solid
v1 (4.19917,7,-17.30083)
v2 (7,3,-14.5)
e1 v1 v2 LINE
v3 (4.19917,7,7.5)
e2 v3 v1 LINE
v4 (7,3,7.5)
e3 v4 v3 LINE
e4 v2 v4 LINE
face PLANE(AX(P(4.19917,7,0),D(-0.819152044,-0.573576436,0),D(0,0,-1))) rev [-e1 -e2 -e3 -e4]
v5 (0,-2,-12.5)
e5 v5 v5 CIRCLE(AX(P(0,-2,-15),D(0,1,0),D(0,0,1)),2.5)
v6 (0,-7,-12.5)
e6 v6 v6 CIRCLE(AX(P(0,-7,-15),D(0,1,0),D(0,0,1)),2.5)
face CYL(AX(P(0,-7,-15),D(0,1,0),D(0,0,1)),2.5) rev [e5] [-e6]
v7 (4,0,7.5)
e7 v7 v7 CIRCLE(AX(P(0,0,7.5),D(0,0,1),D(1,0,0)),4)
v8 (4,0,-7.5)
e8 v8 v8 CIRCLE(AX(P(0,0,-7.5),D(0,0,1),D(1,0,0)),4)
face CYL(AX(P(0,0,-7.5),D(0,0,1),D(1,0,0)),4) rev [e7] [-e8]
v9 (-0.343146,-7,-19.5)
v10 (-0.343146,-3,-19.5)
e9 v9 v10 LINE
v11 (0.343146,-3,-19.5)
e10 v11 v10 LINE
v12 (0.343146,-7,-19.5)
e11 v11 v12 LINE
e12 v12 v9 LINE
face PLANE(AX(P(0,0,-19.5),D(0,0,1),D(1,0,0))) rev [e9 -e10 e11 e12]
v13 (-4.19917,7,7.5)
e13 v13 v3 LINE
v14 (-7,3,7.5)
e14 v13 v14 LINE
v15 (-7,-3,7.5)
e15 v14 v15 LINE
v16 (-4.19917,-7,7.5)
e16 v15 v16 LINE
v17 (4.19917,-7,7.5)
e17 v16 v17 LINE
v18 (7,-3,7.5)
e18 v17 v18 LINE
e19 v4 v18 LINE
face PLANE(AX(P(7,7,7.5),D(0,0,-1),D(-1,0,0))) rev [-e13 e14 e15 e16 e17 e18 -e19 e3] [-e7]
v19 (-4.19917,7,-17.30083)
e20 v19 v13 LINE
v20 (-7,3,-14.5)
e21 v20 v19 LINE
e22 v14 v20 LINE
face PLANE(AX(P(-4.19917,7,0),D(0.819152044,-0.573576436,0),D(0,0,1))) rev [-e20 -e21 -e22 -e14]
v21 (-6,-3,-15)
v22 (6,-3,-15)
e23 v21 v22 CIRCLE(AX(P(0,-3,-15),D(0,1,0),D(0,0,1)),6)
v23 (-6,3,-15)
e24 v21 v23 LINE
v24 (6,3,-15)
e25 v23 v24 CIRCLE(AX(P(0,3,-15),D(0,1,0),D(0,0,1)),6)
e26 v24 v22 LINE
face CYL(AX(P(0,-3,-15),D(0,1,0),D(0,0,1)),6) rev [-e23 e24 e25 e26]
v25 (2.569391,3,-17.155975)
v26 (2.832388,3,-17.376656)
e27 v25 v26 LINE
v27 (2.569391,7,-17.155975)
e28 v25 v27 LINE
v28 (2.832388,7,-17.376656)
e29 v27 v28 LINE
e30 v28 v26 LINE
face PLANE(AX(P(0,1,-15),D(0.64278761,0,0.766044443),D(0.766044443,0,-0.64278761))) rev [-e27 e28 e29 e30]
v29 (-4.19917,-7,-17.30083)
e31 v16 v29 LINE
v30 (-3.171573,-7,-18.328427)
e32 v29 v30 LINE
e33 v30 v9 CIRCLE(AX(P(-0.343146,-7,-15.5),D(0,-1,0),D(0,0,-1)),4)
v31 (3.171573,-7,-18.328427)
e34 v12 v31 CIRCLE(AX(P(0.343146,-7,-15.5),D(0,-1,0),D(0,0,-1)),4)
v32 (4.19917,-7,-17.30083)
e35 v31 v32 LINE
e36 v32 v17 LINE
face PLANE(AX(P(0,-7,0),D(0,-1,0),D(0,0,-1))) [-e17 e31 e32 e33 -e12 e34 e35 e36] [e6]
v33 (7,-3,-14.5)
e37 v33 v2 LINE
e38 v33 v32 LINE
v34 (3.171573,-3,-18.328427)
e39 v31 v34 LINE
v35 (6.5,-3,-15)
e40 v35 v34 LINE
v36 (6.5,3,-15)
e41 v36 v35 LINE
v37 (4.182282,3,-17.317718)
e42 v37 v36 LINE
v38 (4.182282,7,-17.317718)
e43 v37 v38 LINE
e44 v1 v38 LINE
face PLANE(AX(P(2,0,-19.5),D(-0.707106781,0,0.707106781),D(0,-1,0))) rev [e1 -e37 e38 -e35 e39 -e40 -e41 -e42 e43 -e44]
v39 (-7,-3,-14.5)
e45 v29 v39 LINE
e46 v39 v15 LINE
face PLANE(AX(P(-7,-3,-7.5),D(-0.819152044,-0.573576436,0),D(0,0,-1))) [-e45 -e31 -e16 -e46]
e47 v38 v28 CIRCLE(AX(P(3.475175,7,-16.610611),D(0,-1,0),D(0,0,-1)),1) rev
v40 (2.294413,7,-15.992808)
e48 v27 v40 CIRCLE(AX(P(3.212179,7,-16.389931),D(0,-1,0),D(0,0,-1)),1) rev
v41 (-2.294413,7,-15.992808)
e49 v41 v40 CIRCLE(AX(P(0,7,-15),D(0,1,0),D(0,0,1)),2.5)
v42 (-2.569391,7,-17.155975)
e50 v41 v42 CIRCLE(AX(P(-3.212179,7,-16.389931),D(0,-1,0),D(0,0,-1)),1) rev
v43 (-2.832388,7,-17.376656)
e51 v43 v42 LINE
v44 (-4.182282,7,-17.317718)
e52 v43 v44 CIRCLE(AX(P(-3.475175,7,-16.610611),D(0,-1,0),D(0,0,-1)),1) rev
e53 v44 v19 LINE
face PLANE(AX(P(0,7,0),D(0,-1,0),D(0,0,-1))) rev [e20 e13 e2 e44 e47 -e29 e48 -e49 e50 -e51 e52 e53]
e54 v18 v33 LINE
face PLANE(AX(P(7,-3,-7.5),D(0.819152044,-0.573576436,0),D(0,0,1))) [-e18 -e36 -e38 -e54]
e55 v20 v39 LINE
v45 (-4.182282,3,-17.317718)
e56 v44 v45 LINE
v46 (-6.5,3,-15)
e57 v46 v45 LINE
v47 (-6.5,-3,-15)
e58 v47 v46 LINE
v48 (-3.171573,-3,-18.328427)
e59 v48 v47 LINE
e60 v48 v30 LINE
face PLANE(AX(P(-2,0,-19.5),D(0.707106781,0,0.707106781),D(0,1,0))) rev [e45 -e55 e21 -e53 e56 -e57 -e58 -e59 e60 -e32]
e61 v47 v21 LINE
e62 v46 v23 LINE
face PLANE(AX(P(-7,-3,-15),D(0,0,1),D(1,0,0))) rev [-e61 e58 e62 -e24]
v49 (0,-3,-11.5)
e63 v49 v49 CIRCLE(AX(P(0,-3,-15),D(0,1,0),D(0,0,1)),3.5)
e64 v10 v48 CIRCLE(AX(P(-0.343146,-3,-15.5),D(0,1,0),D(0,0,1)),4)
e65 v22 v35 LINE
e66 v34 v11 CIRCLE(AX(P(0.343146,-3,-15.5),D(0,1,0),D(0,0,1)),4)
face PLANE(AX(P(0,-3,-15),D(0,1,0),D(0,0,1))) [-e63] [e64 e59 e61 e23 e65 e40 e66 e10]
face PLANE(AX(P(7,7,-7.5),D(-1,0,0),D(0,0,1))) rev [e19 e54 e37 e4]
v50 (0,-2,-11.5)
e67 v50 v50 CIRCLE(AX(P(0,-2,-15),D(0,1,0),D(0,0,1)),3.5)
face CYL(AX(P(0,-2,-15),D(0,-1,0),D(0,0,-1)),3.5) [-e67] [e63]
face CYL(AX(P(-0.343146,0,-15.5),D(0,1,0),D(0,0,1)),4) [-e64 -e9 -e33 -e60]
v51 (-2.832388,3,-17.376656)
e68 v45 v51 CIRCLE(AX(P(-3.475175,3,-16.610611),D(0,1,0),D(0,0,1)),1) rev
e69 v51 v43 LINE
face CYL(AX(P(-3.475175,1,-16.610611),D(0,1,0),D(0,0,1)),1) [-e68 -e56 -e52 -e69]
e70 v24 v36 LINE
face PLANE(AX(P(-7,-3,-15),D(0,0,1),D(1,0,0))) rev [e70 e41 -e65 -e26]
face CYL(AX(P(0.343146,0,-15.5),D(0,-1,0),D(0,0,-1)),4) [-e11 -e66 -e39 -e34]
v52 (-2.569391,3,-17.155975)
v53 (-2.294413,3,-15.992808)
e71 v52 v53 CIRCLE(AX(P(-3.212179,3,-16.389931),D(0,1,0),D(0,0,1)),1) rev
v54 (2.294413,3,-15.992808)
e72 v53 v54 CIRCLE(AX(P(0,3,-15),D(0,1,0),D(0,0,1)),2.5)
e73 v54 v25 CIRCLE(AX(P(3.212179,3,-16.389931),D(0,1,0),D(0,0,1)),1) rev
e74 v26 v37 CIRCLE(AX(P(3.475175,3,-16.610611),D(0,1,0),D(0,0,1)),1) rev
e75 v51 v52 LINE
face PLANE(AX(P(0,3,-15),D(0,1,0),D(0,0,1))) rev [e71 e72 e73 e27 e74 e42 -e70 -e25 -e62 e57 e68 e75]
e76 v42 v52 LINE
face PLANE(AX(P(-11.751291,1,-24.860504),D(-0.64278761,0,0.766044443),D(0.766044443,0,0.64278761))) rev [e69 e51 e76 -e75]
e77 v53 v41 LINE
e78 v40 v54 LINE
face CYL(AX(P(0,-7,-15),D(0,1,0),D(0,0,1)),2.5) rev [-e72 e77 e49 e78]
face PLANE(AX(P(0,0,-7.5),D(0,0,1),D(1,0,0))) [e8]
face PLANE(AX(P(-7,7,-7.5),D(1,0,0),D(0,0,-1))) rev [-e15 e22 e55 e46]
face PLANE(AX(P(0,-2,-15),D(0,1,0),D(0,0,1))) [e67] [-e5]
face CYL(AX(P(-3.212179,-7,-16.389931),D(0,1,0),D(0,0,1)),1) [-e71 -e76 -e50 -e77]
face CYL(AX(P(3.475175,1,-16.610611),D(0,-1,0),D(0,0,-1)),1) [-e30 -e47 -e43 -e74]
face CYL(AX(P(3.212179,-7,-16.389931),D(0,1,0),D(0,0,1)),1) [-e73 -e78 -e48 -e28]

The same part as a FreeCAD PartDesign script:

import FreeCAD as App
import Part
import Sketcher

V = App.Vector
Q = App.Units.Quantity


def edges_at(feature, points):
    """Names of the edges that pass closest to the given points."""
    edges = feature.Shape.Edges
    near = lambda p: min(range(len(edges)), key=lambda i: edges[i].distToShape(Part.Vertex(*p))[0])
    return sorted({f"Edge{near(p) + 1}" for p in points})

doc = App.newDocument("Part")
body = doc.addObject("PartDesign::Body", "Body")

# Sketch on XZ plane
sketch1 = body.newObject("Sketcher::SketchObject", "Sketch")
sketch1.AttachmentSupport = (doc.getObject("XZ_Plane"), [""])
sketch1.MapMode = "FlatFace"
sketch1.addGeometry(Part.LineSegment(V(-7, -7.5, 0), V(-7, 7.5, 0)), False)
sketch1.addGeometry(Part.LineSegment(V(-7, 7.5, 0), V(7, 7.5, 0)), False)
sketch1.addGeometry(Part.LineSegment(V(7, 7.5, 0), V(7, -7.5, 0)), False)
sketch1.addGeometry(Part.LineSegment(V(7, -7.5, 0), V(-7, -7.5, 0)), False)
sketch1.addConstraint(Sketcher.Constraint("Coincident", 0, 2, 1, 1))
sketch1.addConstraint(Sketcher.Constraint("Coincident", 1, 2, 2, 1))
sketch1.addConstraint(Sketcher.Constraint("Coincident", 2, 2, 3, 1))
sketch1.addConstraint(Sketcher.Constraint("Coincident", 3, 2, 0, 1))
sketch1.addConstraint(Sketcher.Constraint("Vertical", 0))
sketch1.addConstraint(Sketcher.Constraint("Horizontal", 1))
sketch1.addConstraint(Sketcher.Constraint("Vertical", 2))
sketch1.addConstraint(Sketcher.Constraint("Horizontal", 3))
sketch1.addConstraint(Sketcher.Constraint("Symmetric", 0, 2, 2, 2, -1, 1))
sketch1.addConstraint(Sketcher.Constraint("DistanceX", 1, 1, 1, 2, 14.0))
sketch1.addConstraint(Sketcher.Constraint("DistanceY", 0, 1, 0, 2, 15.0))
pad1 = body.newObject("PartDesign::Pad", "Pad")
pad1.Profile = sketch1
pad1.Length = 14
pad1.Midplane = True

# Sketch on XY plane
sketch2 = body.newObject("Sketcher::SketchObject", "Sketch001")
sketch2.AttachmentSupport = (doc.getObject("XY_Plane"), [""])
sketch2.MapMode = "FlatFace"
sketch2.AttachmentOffset = App.Placement(V(0, 0, 7.5), App.Rotation())
sketch2.addGeometry(Part.Circle(V(0, 0, 0), V(0, 0, 1), 4), False)
sketch2.addConstraint(Sketcher.Constraint("Coincident", 0, 3, -1, 1))
sketch2.addConstraint(Sketcher.Constraint("Diameter", 0, 8.0))
pocket1 = body.newObject("PartDesign::Pocket", "Pocket")
pocket1.Profile = sketch2
pocket1.Type = "ThroughAll"

# Sketch on XY plane
sketch3 = body.newObject("Sketcher::SketchObject", "Sketch002")
sketch3.AttachmentSupport = (doc.getObject("XY_Plane"), [""])
sketch3.MapMode = "FlatFace"
sketch3.AttachmentOffset = App.Placement(V(0, 0, -7.5), App.Rotation())
sketch3.addGeometry(Part.LineSegment(V(7, 7, 0), V(7, -7, 0)), False)
sketch3.addGeometry(Part.LineSegment(V(7, -7, 0), V(-7, -7, 0)), False)
sketch3.addGeometry(Part.LineSegment(V(-7, -7, 0), V(-7, 7, 0)), False)
sketch3.addGeometry(Part.LineSegment(V(-7, 7, 0), V(7, 7, 0)), False)
sketch3.addConstraint(Sketcher.Constraint("Coincident", 0, 2, 1, 1))
sketch3.addConstraint(Sketcher.Constraint("Coincident", 1, 2, 2, 1))
sketch3.addConstraint(Sketcher.Constraint("Coincident", 2, 2, 3, 1))
sketch3.addConstraint(Sketcher.Constraint("Coincident", 3, 2, 0, 1))
sketch3.addConstraint(Sketcher.Constraint("Vertical", 0))
sketch3.addConstraint(Sketcher.Constraint("Horizontal", 1))
sketch3.addConstraint(Sketcher.Constraint("Vertical", 2))
sketch3.addConstraint(Sketcher.Constraint("Horizontal", 3))
sketch3.addConstraint(Sketcher.Constraint("Symmetric", 0, 2, 2, 2, -1, 1))
sketch3.addConstraint(Sketcher.Constraint("Equal", 3, 0))
sketch3.addConstraint(Sketcher.Constraint("DistanceX", 1, 2, 1, 1, 14.0))
pad2 = body.newObject("PartDesign::Pad", "Pad001")
pad2.Profile = sketch3
pad2.Length = 12
pad2.Reversed = True

# Sketch on XZ plane
sketch4 = body.newObject("Sketcher::SketchObject", "Sketch003")
sketch4.AttachmentSupport = (doc.getObject("XZ_Plane"), [""])
sketch4.MapMode = "FlatFace"
sketch4.addGeometry(Part.Circle(V(0, -15, 0), V(0, 0, 1), 6), False)
sketch4.addConstraint(Sketcher.Constraint("PointOnObject", 0, 3, -2))
sketch4.addConstraint(Sketcher.Constraint("Diameter", 0, 12.0))
sketch4.addConstraint(Sketcher.Constraint("DistanceY", 0, 3, -1, 1, 15.0))
pocket2 = body.newObject("PartDesign::Pocket", "Pocket001")
pocket2.Profile = sketch4
pocket2.Length = 6
pocket2.Midplane = True

# Sketch on XZ plane
sketch5 = body.newObject("Sketcher::SketchObject", "Sketch004")
sketch5.AttachmentSupport = (doc.getObject("XZ_Plane"), [""])
sketch5.MapMode = "FlatFace"
sketch5.AttachmentOffset = App.Placement(V(0, 0, 3), App.Rotation())
sketch5.addGeometry(Part.Circle(V(0, -15, 0), V(0, 0, 1), 2.5), False)
sketch5.addConstraint(Sketcher.Constraint("PointOnObject", 0, 3, -2))
sketch5.addConstraint(Sketcher.Constraint("Diameter", 0, 5.0))
sketch5.addConstraint(Sketcher.Constraint("DistanceY", 0, 3, -1, 1, 15.0))
pocket3 = body.newObject("PartDesign::Pocket", "Pocket002")
pocket3.Profile = sketch5
pocket3.Type = "ThroughAll"
pocket3.Midplane = True

# Sketch on YZ plane
sketch6 = body.newObject("Sketcher::SketchObject", "Sketch005")
sketch6.AttachmentSupport = (doc.getObject("YZ_Plane"), [""])
sketch6.MapMode = "FlatFace"
sketch6.addGeometry(Part.LineSegment(V(3, -15, 0), V(-3, -15, 0)), False)
sketch6.addGeometry(Part.LineSegment(V(-3, -15, 0), V(-3, -19.5, 0)), False)
sketch6.addGeometry(Part.LineSegment(V(-3, -19.5, 0), V(3, -19.5, 0)), False)
sketch6.addGeometry(Part.LineSegment(V(3, -19.5, 0), V(3, -15, 0)), False)
sketch6.addConstraint(Sketcher.Constraint("Coincident", 0, 2, 1, 1))
sketch6.addConstraint(Sketcher.Constraint("Coincident", 1, 2, 2, 1))
sketch6.addConstraint(Sketcher.Constraint("Coincident", 2, 2, 3, 1))
sketch6.addConstraint(Sketcher.Constraint("Coincident", 3, 2, 0, 1))
sketch6.addConstraint(Sketcher.Constraint("Horizontal", 0))
sketch6.addConstraint(Sketcher.Constraint("Vertical", 1))
sketch6.addConstraint(Sketcher.Constraint("Horizontal", 2))
sketch6.addConstraint(Sketcher.Constraint("Vertical", 3))
sketch6.addConstraint(Sketcher.Constraint("DistanceX", 0, 2, 0, 1, 6.0))
sketch6.addConstraint(Sketcher.Constraint("DistanceY", 1, 2, 1, 1, 4.5))
sketch6.addConstraint(Sketcher.Constraint("DistanceX", 0, 2, -1, 1, 3.0))
sketch6.addConstraint(Sketcher.Constraint("DistanceY", 0, 2, -1, 1, 15.0))
pocket4 = body.newObject("PartDesign::Pocket", "Pocket003")
pocket4.Profile = sketch6
pocket4.Type = "ThroughAll"
pocket4.Midplane = True
doc.recompute()

chamfer = body.newObject("PartDesign::Chamfer", "Chamfer")
chamfer.Base = (pocket4, edges_at(pocket4, [(7, -5, -19.5), (-7, -5, -19.5)]))
chamfer.Size = 5

# Sketch on XZ plane
sketch7 = body.newObject("Sketcher::SketchObject", "Sketch006")
sketch7.AttachmentSupport = (doc.getObject("XZ_Plane"), [""])
sketch7.MapMode = "FlatFace"
sketch7.AttachmentOffset = App.Placement(V(0, 0, 3), App.Rotation())
sketch7.addGeometry(Part.Circle(V(0, -15, 0), V(0, 0, 1), 3.5), False)
sketch7.addGeometry(Part.Circle(V(0, -15, 0), V(0, 0, 1), 2.5), False)
sketch7.addConstraint(Sketcher.Constraint("Coincident", 1, 3, 0, 3))
sketch7.addConstraint(Sketcher.Constraint("PointOnObject", 0, 3, -2))
sketch7.addConstraint(Sketcher.Constraint("Diameter", 0, 7.0))
sketch7.addConstraint(Sketcher.Constraint("Diameter", 1, 5.0))
sketch7.addConstraint(Sketcher.Constraint("DistanceY", 0, 3, -1, 1, 15.0))
pad3 = body.newObject("PartDesign::Pad", "Pad002")
pad3.Profile = sketch7
pad3.Length = 1
pad3.Reversed = True

# Sketch on XZ plane
sketch8 = body.newObject("Sketcher::SketchObject", "Sketch007")
sketch8.AttachmentSupport = (doc.getObject("XZ_Plane"), [""])
sketch8.MapMode = "FlatFace"
sketch8.AttachmentOffset = App.Placement(V(0, 0, -7), App.Rotation())
sketch8.addGeometry(Part.LineSegment(V(0, -15, 0), V(11.277541, -24.462981, 0)), False)
sketch8.addGeometry(Part.LineSegment(V(11.277541, -24.462981, 0), V(-11.751291, -24.860504, 0)), False)
sketch8.addGeometry(Part.LineSegment(V(-11.751291, -24.860504, 0), V(0, -15, 0)), False)
sketch8.addConstraint(Sketcher.Constraint("Coincident", 0, 2, 1, 1))
sketch8.addConstraint(Sketcher.Constraint("Coincident", 1, 2, 2, 1))
sketch8.addConstraint(Sketcher.Constraint("Coincident", 2, 2, 0, 1))
sketch8.addConstraint(Sketcher.Constraint("PointOnObject", 2, 2, -2))
sketch8.addConstraint(Sketcher.Constraint("Angle", 0, Q("-40 deg")))
sketch8.addConstraint(Sketcher.Constraint("Angle", 2, Q("40 deg")))
sketch8.addConstraint(Sketcher.Constraint("DistanceY", 2, 2, -1, 1, 15.0))
sketch8.addConstraint(Sketcher.Constraint("Distance", 2, 15.340221))
sketch8.addConstraint(Sketcher.Constraint("DistanceX", -1, 1, 0, 2, 11.277541))
pocket5 = body.newObject("PartDesign::Pocket", "Pocket004")
pocket5.Profile = sketch8
pocket5.Length = 6
pocket5.Reversed = True
doc.recompute()

chamfer2 = body.newObject("PartDesign::Chamfer", "Chamfer001")
chamfer2.Base = (pocket5, edges_at(pocket5, [(7, 7, -3.5)]))
chamfer2.ChamferType = "Two distances"
chamfer2.Size = 4
chamfer2.Size2 = 2.80083
chamfer2.FlipDirection = True
doc.recompute()

chamfer3 = body.newObject("PartDesign::Chamfer", "Chamfer002")
chamfer3.Base = (chamfer2, edges_at(chamfer2, [(-7, 7, -3.5)]))
chamfer3.ChamferType = "Two distances"
chamfer3.Size = 4
chamfer3.Size2 = 2.80083
chamfer3.FlipDirection = True
doc.recompute()

chamfer4 = body.newObject("PartDesign::Chamfer", "Chamfer003")
chamfer4.Base = (chamfer3, edges_at(chamfer3, [(7, -7, -3.5)]))
chamfer4.ChamferType = "Two distances"
chamfer4.Size = 4
chamfer4.Size2 = 2.80083
doc.recompute()

chamfer5 = body.newObject("PartDesign::Chamfer", "Chamfer004")
chamfer5.Base = (chamfer4, edges_at(chamfer4, [(-7, -7, -3.5)]))
chamfer5.ChamferType = "Two distances"
chamfer5.Size = 4
chamfer5.Size2 = 2.80083
chamfer5.FlipDirection = True
doc.recompute()

fillet = body.newObject("PartDesign::Fillet", "Fillet")
fillet.Base = (chamfer5, edges_at(chamfer5, [
    (-3.534, 5, -17.966),
    (3.534, 5, -17.966),
    (1.915, 5, -16.607),
    (-1.915, 5, -16.607),
]))
fillet.Radius = 1
doc.recompute()

fillet2 = body.newObject("PartDesign::Fillet", "Fillet001")
fillet2.Base = (fillet, edges_at(fillet, [(-2, -5, -19.5), (2, -5, -19.5)]))
fillet2.Radius = 4

doc.recompute()
